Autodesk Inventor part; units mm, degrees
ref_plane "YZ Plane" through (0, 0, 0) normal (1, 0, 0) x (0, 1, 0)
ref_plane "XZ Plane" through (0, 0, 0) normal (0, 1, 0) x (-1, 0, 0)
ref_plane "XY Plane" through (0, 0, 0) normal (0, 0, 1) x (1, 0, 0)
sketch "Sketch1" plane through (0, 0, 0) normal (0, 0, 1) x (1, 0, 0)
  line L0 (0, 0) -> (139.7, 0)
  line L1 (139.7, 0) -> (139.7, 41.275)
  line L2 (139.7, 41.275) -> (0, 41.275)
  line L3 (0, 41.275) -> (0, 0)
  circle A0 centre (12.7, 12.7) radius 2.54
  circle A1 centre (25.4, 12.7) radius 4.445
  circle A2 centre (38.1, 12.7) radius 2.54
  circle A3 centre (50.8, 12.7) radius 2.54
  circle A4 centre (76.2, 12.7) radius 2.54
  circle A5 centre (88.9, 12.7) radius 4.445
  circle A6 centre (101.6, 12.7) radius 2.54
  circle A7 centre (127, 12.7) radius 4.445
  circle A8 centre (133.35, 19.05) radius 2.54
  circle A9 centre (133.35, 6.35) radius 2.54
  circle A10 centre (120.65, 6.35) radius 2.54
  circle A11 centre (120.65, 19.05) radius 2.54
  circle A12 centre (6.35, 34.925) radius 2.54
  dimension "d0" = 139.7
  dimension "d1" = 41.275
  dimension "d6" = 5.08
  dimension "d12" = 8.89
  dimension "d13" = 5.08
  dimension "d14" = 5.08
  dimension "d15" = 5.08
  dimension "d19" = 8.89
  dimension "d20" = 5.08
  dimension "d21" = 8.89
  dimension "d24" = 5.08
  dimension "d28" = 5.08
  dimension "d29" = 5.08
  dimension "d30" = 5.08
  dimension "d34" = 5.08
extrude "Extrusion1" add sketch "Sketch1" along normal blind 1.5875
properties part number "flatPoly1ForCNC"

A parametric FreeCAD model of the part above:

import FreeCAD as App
import Part
import Sketcher

V = App.Vector
Q = App.Units.Quantity

doc = App.newDocument("Part")
params = doc.addObject("Spreadsheet::Sheet", "Params")
for row, (alias, value) in enumerate([
    ("sketch1_diameter", "0.2 in"),
    ("sketch1_diameter2", "0.35 in"),
    ("sketch1_width", "5.5 in"),
    ("sketch1_height", "1.625 in"),
    ("pad1_length", "0.0625 in"),
], start=1):
    params.set(f"A{row}", alias)
    params.set(f"B{row}", "=" + value)
    params.setAlias(f"B{row}", alias)

body = doc.addObject("PartDesign::Body", "Body")

# Sketch on XY plane
sketch1 = doc.addObject("Sketcher::SketchObject", "Sketch")
body.addObject(sketch1)
sketch1.AttachmentSupport = (doc.XY_Plane, [""])
sketch1.MapMode = "FlatFace"
sketch1.addGeometry([
    Part.LineSegment(V(0, 41.275, 0), V(0, 0, 0)),  # 0
    Part.LineSegment(V(0, 0, 0), V(139.7, 0, 0)),  # 1
    Part.LineSegment(V(139.7, 0, 0), V(139.7, 41.275, 0)),  # 2
    Part.LineSegment(V(139.7, 41.275, 0), V(0, 41.275, 0)),  # 3
    Part.Circle(V(12.7, 12.7, 0), V(0, 0, 1), 2.54),  # 4
    Part.Circle(V(25.4, 12.7, 0), V(0, 0, 1), 4.445),  # 5
    Part.Circle(V(38.1, 12.7, 0), V(0, 0, 1), 2.54),  # 6
    Part.Circle(V(50.8, 12.7, 0), V(0, 0, 1), 2.54),  # 7
    Part.Circle(V(120.65, 6.35, 0), V(0, 0, 1), 2.54),  # 8
    Part.Circle(V(133.35, 6.35, 0), V(0, 0, 1), 2.54),  # 9
    Part.Circle(V(76.2, 12.7, 0), V(0, 0, 1), 2.54),  # 10
    Part.Circle(V(88.9, 12.7, 0), V(0, 0, 1), 4.445),  # 11
    Part.Circle(V(101.6, 12.7, 0), V(0, 0, 1), 2.54),  # 12
    Part.Circle(V(127, 12.7, 0), V(0, 0, 1), 4.445),  # 13
    Part.Circle(V(120.65, 19.05, 0), V(0, 0, 1), 2.54),  # 14
    Part.Circle(V(133.35, 19.05, 0), V(0, 0, 1), 2.54),  # 15
    Part.Circle(V(6.35, 34.925, 0), V(0, 0, 1), 2.54),  # 16
], False)
sketch1.addConstraint([
    Sketcher.Constraint("Coincident", 0, 2, 1, 1),
    Sketcher.Constraint("Coincident", 1, 2, 2, 1),
    Sketcher.Constraint("Coincident", 2, 2, 3, 1),
    Sketcher.Constraint("Coincident", 3, 2, 0, 1),
    Sketcher.Constraint("Vertical", 0),
    Sketcher.Constraint("Horizontal", 1),
    Sketcher.Constraint("Vertical", 2),
    Sketcher.Constraint("Horizontal", 3),
    Sketcher.Constraint("Coincident", 0, 2, -1, 1),
    Sketcher.Constraint("Equal", 4, 6),
    Sketcher.Constraint("Equal", 6, 7),
    Sketcher.Constraint("Equal", 7, 8),
    Sketcher.Constraint("Equal", 8, 9),
    Sketcher.Constraint("Equal", 9, 10),
    Sketcher.Constraint("Equal", 5, 11),
    Sketcher.Constraint("Equal", 10, 12),
    Sketcher.Constraint("Equal", 11, 13),
    Sketcher.Constraint("Equal", 12, 14),
    Sketcher.Constraint("Equal", 14, 15),
    Sketcher.Constraint("Equal", 15, 16),
    Sketcher.Constraint("Horizontal", 4, 3, 5, 3),
    Sketcher.Constraint("Horizontal", 5, 3, 6, 3),
    Sketcher.Constraint("Horizontal", 6, 3, 7, 3),
    Sketcher.Constraint("Horizontal", 8, 3, 9, 3),
    Sketcher.Constraint("Horizontal", 7, 3, 10, 3),
    Sketcher.Constraint("Horizontal", 10, 3, 11, 3),
    Sketcher.Constraint("Horizontal", 11, 3, 12, 3),
    Sketcher.Constraint("Horizontal", 12, 3, 13, 3),
    Sketcher.Constraint("Horizontal", 14, 3, 15, 3),
    Sketcher.Constraint("Vertical", 8, 3, 14, 3),
    Sketcher.Constraint("Vertical", 9, 3, 15, 3),
    Sketcher.Constraint("Diameter", 4, Q("0.2 in")),
    Sketcher.Constraint("Diameter", 5, Q("0.35 in")),
    Sketcher.Constraint("DistanceX", 1, 1, 1, 2, Q("5.5 in")),
    Sketcher.Constraint("DistanceY", 0, 2, 0, 1, Q("1.625 in")),
    Sketcher.Constraint("DistanceX", -1, 1, 5, 3, Q("1 in")),
    Sketcher.Constraint("DistanceX", -1, 1, 7, 3, Q("2 in")),
    Sketcher.Constraint("DistanceX", -1, 1, 10, 3, Q("3 in")),
    Sketcher.Constraint("DistanceX", -1, 1, 12, 3, Q("4 in")),
    Sketcher.Constraint("DistanceX", -1, 1, 13, 3, Q("5 in")),
    Sketcher.Constraint("DistanceX", 4, 3, 6, 3, Q("1 in")),
    Sketcher.Constraint("DistanceX", 6, 3, 11, 3, Q("2 in")),
    Sketcher.Constraint("DistanceX", -1, 1, 4, 3, Q("0.5 in")),
    Sketcher.Constraint("DistanceY", -1, 1, 4, 3, Q("0.5 in")),
    Sketcher.Constraint("DistanceX", 8, 3, 9, 3, Q("0.5 in")),
    Sketcher.Constraint("DistanceY", 8, 3, 14, 3, Q("0.5 in")),
    Sketcher.Constraint("DistanceX", -1, 1, 8, 3, Q("4.75 in")),
    Sketcher.Constraint("DistanceY", -1, 1, 8, 3, Q("0.25 in")),
    Sketcher.Constraint("DistanceX", -1, 1, 16, 3, Q("0.25 in")),
    Sketcher.Constraint("DistanceY", 16, 3, 3, 2, Q("0.25 in")),
])
sketch1.setExpression("Constraints[31]", "Params.sketch1_diameter")
sketch1.setExpression("Constraints[32]", "Params.sketch1_diameter2")
sketch1.setExpression("Constraints[33]", "Params.sketch1_width")
sketch1.setExpression("Constraints[34]", "Params.sketch1_height")
pad1 = doc.addObject("PartDesign::Pad", "Pad")
body.addObject(pad1)
pad1.Profile = sketch1
pad1.setExpression("Length", "Params.pad1_length")

doc.recompute()
